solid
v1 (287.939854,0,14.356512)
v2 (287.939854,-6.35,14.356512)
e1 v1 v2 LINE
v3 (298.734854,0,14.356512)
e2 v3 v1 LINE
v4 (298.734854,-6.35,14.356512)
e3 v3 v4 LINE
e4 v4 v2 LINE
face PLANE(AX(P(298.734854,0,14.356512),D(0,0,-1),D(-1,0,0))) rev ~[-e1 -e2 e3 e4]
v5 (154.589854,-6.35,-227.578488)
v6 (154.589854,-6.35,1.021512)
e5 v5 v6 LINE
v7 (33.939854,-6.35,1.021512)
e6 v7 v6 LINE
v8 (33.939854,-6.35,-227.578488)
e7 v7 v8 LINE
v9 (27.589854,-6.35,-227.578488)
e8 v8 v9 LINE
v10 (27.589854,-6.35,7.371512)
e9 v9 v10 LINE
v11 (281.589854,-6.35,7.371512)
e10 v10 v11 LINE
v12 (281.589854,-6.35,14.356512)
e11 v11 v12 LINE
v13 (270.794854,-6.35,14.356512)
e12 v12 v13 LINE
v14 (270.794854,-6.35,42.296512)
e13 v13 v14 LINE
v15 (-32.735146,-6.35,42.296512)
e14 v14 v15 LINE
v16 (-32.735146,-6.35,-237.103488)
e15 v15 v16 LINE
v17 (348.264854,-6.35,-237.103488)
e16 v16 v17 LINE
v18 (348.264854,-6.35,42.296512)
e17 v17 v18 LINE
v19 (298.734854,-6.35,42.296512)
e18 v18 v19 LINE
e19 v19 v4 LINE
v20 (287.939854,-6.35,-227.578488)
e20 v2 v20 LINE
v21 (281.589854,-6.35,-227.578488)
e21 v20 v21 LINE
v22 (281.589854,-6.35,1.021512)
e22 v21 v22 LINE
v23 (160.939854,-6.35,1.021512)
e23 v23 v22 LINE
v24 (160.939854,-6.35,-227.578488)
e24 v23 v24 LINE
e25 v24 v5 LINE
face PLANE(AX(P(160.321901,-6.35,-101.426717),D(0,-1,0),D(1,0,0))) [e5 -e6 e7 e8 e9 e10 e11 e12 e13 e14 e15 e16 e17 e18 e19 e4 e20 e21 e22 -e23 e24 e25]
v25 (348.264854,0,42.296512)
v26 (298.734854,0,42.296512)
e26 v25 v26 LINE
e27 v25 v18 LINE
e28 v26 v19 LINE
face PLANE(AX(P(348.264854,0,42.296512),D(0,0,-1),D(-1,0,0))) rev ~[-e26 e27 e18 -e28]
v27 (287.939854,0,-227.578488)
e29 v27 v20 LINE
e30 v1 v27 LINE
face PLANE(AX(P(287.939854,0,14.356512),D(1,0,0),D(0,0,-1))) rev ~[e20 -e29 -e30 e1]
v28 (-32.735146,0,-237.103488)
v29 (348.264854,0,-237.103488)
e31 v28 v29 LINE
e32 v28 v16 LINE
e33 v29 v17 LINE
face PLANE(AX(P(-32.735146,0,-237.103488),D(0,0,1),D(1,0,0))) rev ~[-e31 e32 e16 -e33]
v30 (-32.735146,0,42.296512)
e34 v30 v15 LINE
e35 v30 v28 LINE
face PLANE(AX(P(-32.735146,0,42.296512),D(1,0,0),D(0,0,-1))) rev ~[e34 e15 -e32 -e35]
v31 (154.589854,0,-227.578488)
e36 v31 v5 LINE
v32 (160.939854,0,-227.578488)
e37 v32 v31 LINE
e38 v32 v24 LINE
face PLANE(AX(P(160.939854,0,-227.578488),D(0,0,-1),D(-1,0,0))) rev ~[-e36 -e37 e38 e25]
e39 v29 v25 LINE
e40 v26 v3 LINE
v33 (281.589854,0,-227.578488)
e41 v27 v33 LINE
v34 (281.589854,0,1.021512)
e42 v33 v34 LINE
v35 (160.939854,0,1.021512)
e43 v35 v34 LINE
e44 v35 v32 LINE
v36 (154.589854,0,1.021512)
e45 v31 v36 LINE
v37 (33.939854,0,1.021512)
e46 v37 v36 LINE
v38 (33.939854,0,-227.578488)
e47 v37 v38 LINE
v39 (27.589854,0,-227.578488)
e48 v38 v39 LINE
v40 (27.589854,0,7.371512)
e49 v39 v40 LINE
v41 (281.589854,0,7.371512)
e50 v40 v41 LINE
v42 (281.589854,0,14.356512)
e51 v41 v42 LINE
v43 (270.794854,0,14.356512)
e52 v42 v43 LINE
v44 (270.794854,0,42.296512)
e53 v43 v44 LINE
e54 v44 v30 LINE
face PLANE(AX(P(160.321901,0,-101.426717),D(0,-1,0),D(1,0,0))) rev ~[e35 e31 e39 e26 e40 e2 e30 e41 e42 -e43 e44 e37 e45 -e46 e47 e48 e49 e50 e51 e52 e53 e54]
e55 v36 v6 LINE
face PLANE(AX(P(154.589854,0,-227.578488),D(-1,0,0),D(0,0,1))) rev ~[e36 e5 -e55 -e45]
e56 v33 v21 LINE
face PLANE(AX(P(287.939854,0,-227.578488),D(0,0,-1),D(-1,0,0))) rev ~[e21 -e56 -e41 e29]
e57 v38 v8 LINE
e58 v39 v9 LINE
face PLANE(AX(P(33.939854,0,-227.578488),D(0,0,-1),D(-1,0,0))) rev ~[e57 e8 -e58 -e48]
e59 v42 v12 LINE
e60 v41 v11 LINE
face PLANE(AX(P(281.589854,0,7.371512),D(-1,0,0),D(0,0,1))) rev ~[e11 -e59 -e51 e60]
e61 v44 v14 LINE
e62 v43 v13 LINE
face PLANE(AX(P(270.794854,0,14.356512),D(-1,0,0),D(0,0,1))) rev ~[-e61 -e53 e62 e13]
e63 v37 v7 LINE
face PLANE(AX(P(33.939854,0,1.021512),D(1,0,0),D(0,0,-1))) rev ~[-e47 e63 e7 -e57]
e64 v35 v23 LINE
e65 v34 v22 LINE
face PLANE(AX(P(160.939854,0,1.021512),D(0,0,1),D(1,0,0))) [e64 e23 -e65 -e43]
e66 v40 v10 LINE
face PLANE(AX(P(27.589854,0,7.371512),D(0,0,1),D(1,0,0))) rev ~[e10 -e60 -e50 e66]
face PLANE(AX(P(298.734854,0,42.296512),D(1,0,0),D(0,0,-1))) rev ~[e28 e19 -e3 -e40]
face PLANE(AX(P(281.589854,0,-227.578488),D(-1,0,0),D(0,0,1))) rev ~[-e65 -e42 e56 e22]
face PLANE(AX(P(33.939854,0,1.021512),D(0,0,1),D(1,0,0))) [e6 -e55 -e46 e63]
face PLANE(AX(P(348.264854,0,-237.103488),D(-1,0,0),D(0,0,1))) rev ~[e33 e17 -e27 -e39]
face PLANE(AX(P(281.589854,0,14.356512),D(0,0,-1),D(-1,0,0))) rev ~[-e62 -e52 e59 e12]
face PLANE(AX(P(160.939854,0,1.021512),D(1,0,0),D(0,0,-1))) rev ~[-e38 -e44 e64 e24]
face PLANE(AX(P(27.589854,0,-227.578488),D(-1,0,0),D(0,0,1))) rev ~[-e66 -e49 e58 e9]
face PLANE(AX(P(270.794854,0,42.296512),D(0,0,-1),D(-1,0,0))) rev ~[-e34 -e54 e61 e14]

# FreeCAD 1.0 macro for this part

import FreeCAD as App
import Part
import Sketcher
Q = App.Units.Quantity

doc = App.newDocument("Part")
params = doc.addObject("Spreadsheet::Sheet", "Params")
for row, (alias, value) in enumerate([
    ("sketch1_width", "15 in"),
    ("sketch1_width2", "10 in"),
    ("sketch1_height", "11 in"),
    ("sketch1_height2", "9 in"),
    ("sketch1_height3", "1.1 in"),
    ("pad1_length", "0.25 in"),
], start=1):
    params.set(f"A{row}", alias)
    params.set(f"B{row}", "=" + value)
    params.setAlias(f"B{row}", alias)

body = doc.addObject("PartDesign::Body", "Body")

# Sketch on XZ plane
sketch1 = body.newObject("Sketcher::SketchObject", "Sketch")
sketch1.AttachmentSupport = (doc.getObject("XZ_Plane"), [""])
sketch1.MapMode = "FlatFace"
sketch1.addGeometry(Part.LineSegment(App.Vector(270.794854, 42.296512, 0), App.Vector(-32.735146, 42.296512, 0)), False)
sketch1.addGeometry(Part.LineSegment(App.Vector(-32.735146, 42.296512, 0), App.Vector(-32.735146, -237.103488, 0)), False)
sketch1.addGeometry(Part.LineSegment(App.Vector(-32.735146, -237.103488, 0), App.Vector(348.264854, -237.103488, 0)), False)
sketch1.addGeometry(Part.LineSegment(App.Vector(348.264854, -237.103488, 0), App.Vector(348.264854, 42.296512, 0)), False)
sketch1.addGeometry(Part.LineSegment(App.Vector(348.264854, 42.296512, 0), App.Vector(298.734854, 42.296512, 0)), False)
sketch1.addGeometry(Part.LineSegment(App.Vector(298.734854, 42.296512, 0), App.Vector(298.734854, 14.356512, 0)), False)
sketch1.addGeometry(Part.LineSegment(App.Vector(298.734854, 14.356512, 0), App.Vector(287.939854, 14.356512, 0)), False)
sketch1.addGeometry(Part.LineSegment(App.Vector(287.939854, 14.356512, 0), App.Vector(287.939854, -227.578488, 0)), False)
sketch1.addGeometry(Part.LineSegment(App.Vector(287.939854, -227.578488, 0), App.Vector(281.589854, -227.578488, 0)), False)
sketch1.addGeometry(Part.LineSegment(App.Vector(281.589854, -227.578488, 0), App.Vector(281.589854, 1.021512, 0)), False)
sketch1.addGeometry(Part.LineSegment(App.Vector(281.589854, 1.021512, 0), App.Vector(160.939854, 1.021512, 0)), False)
sketch1.addGeometry(Part.LineSegment(App.Vector(160.939854, 1.021512, 0), App.Vector(160.939854, -227.578488, 0)), False)
sketch1.addGeometry(Part.LineSegment(App.Vector(160.939854, -227.578488, 0), App.Vector(154.589854, -227.578488, 0)), False)
sketch1.addGeometry(Part.LineSegment(App.Vector(154.589854, -227.578488, 0), App.Vector(154.589854, 1.021512, 0)), False)
sketch1.addGeometry(Part.LineSegment(App.Vector(154.589854, 1.021512, 0), App.Vector(33.939854, 1.021512, 0)), False)
sketch1.addGeometry(Part.LineSegment(App.Vector(33.939854, 1.021512, 0), App.Vector(33.939854, -227.578488, 0)), False)
sketch1.addGeometry(Part.LineSegment(App.Vector(33.939854, -227.578488, 0), App.Vector(27.589854, -227.578488, 0)), False)
sketch1.addGeometry(Part.LineSegment(App.Vector(27.589854, -227.578488, 0), App.Vector(27.589854, 7.371512, 0)), False)
sketch1.addGeometry(Part.LineSegment(App.Vector(27.589854, 7.371512, 0), App.Vector(281.589854, 7.371512, 0)), False)
sketch1.addGeometry(Part.LineSegment(App.Vector(281.589854, 7.371512, 0), App.Vector(281.589854, 14.356512, 0)), False)
sketch1.addGeometry(Part.LineSegment(App.Vector(281.589854, 14.356512, 0), App.Vector(270.794854, 14.356512, 0)), False)
sketch1.addGeometry(Part.LineSegment(App.Vector(270.794854, 14.356512, 0), App.Vector(270.794854, 42.296512, 0)), False)
sketch1.addConstraint(Sketcher.Constraint("Coincident", 0, 2, 1, 1))
sketch1.addConstraint(Sketcher.Constraint("Coincident", 1, 2, 2, 1))
sketch1.addConstraint(Sketcher.Constraint("Coincident", 2, 2, 3, 1))
sketch1.addConstraint(Sketcher.Constraint("Coincident", 3, 2, 4, 1))
sketch1.addConstraint(Sketcher.Constraint("Coincident", 4, 2, 5, 1))
sketch1.addConstraint(Sketcher.Constraint("Coincident", 5, 2, 6, 1))
sketch1.addConstraint(Sketcher.Constraint("Coincident", 6, 2, 7, 1))
sketch1.addConstraint(Sketcher.Constraint("Coincident", 7, 2, 8, 1))
sketch1.addConstraint(Sketcher.Constraint("Coincident", 8, 2, 9, 1))
sketch1.addConstraint(Sketcher.Constraint("Coincident", 9, 2, 10, 1))
sketch1.addConstraint(Sketcher.Constraint("Coincident", 10, 2, 11, 1))
sketch1.addConstraint(Sketcher.Constraint("Coincident", 11, 2, 12, 1))
sketch1.addConstraint(Sketcher.Constraint("Coincident", 12, 2, 13, 1))
sketch1.addConstraint(Sketcher.Constraint("Coincident", 13, 2, 14, 1))
sketch1.addConstraint(Sketcher.Constraint("Coincident", 14, 2, 15, 1))
sketch1.addConstraint(Sketcher.Constraint("Coincident", 15, 2, 16, 1))
sketch1.addConstraint(Sketcher.Constraint("Coincident", 16, 2, 17, 1))
sketch1.addConstraint(Sketcher.Constraint("Coincident", 17, 2, 18, 1))
sketch1.addConstraint(Sketcher.Constraint("Coincident", 18, 2, 19, 1))
sketch1.addConstraint(Sketcher.Constraint("Coincident", 19, 2, 20, 1))
sketch1.addConstraint(Sketcher.Constraint("Coincident", 20, 2, 21, 1))
sketch1.addConstraint(Sketcher.Constraint("Coincident", 21, 2, 0, 1))
sketch1.addConstraint(Sketcher.Constraint("Horizontal", 0))
sketch1.addConstraint(Sketcher.Constraint("Vertical", 1))
sketch1.addConstraint(Sketcher.Constraint("Horizontal", 2))
sketch1.addConstraint(Sketcher.Constraint("Vertical", 3))
sketch1.addConstraint(Sketcher.Constraint("Horizontal", 4))
sketch1.addConstraint(Sketcher.Constraint("Vertical", 5))
sketch1.addConstraint(Sketcher.Constraint("Horizontal", 6))
sketch1.addConstraint(Sketcher.Constraint("Vertical", 7))
sketch1.addConstraint(Sketcher.Constraint("Horizontal", 8))
sketch1.addConstraint(Sketcher.Constraint("Vertical", 9))
sketch1.addConstraint(Sketcher.Constraint("Horizontal", 10))
sketch1.addConstraint(Sketcher.Constraint("Vertical", 11))
sketch1.addConstraint(Sketcher.Constraint("Horizontal", 12))
sketch1.addConstraint(Sketcher.Constraint("Vertical", 13))
sketch1.addConstraint(Sketcher.Constraint("Horizontal", 14))
sketch1.addConstraint(Sketcher.Constraint("Vertical", 15))
sketch1.addConstraint(Sketcher.Constraint("Horizontal", 16))
sketch1.addConstraint(Sketcher.Constraint("Vertical", 17))
sketch1.addConstraint(Sketcher.Constraint("Horizontal", 18))
sketch1.addConstraint(Sketcher.Constraint("Vertical", 19))
sketch1.addConstraint(Sketcher.Constraint("Horizontal", 20))
sketch1.addConstraint(Sketcher.Constraint("Vertical", 21))
sketch1.addConstraint(Sketcher.Constraint("Horizontal", 0, 2, 3, 2))
sketch1.addConstraint(Sketcher.Constraint("Horizontal", 8, 2, 11, 2))
sketch1.addConstraint(Sketcher.Constraint("Horizontal", 10, 2, 13, 2))
sketch1.addConstraint(Sketcher.Constraint("Horizontal", 12, 2, 15, 2))
sketch1.addConstraint(Sketcher.Constraint("Horizontal", 6, 2, 19, 2))
sketch1.addConstraint(Sketcher.Constraint("Vertical", 9, 2, 18, 2))
sketch1.addConstraint(Sketcher.Constraint("Equal", 8, 12))
sketch1.addConstraint(Sketcher.Constraint("Equal", 10, 14))
sketch1.addConstraint(Sketcher.Constraint("Equal", 12, 16))
sketch1.addConstraint(Sketcher.Constraint("Equal", 6, 20))
sketch1.addConstraint(Sketcher.Constraint("DistanceX", 2, 1, 2, 2, Q("15 in")))
sketch1.addConstraint(Sketcher.Constraint("DistanceX", 18, 1, 18, 2, Q("10 in")))
sketch1.addConstraint(Sketcher.Constraint("DistanceY", 1, 2, 1, 1, Q("11 in")))
sketch1.addConstraint(Sketcher.Constraint("DistanceY", 9, 1, 9, 2, Q("9 in")))
sketch1.addConstraint(Sketcher.Constraint("DistanceY", 5, 2, 5, 1, Q("1.1 in")))
sketch1.addConstraint(Sketcher.Constraint("DistanceX", 0, 2, 0, 1, Q("11.95 in")))
sketch1.addConstraint(Sketcher.Constraint("DistanceX", 4, 2, 4, 1, Q("1.95 in")))
sketch1.addConstraint(Sketcher.Constraint("DistanceX", 8, 2, 8, 1, Q("0.25 in")))
sketch1.addConstraint(Sketcher.Constraint("DistanceY", 17, 1, 17, 2, Q("9.25 in")))
sketch1.addConstraint(Sketcher.Constraint("DistanceY", 7, 2, 7, 1, Q("9.525 in")))
sketch1.addConstraint(Sketcher.Constraint("DistanceX", 0, 2, -1, 1, Q("32.735146 mm")))
sketch1.addConstraint(Sketcher.Constraint("DistanceY", -1, 1, 0, 2, Q("42.296512 mm")))
sketch1.setExpression("Constraints[54]", "Params.sketch1_width")
sketch1.setExpression("Constraints[55]", "Params.sketch1_width2")
sketch1.setExpression("Constraints[56]", "Params.sketch1_height")
sketch1.setExpression("Constraints[57]", "Params.sketch1_height2")
sketch1.setExpression("Constraints[58]", "Params.sketch1_height3")
pad1 = body.newObject("PartDesign::Pad", "Pad")
pad1.Profile = sketch1
pad1.setExpression("Length", "Params.pad1_length")

doc.recompute()
